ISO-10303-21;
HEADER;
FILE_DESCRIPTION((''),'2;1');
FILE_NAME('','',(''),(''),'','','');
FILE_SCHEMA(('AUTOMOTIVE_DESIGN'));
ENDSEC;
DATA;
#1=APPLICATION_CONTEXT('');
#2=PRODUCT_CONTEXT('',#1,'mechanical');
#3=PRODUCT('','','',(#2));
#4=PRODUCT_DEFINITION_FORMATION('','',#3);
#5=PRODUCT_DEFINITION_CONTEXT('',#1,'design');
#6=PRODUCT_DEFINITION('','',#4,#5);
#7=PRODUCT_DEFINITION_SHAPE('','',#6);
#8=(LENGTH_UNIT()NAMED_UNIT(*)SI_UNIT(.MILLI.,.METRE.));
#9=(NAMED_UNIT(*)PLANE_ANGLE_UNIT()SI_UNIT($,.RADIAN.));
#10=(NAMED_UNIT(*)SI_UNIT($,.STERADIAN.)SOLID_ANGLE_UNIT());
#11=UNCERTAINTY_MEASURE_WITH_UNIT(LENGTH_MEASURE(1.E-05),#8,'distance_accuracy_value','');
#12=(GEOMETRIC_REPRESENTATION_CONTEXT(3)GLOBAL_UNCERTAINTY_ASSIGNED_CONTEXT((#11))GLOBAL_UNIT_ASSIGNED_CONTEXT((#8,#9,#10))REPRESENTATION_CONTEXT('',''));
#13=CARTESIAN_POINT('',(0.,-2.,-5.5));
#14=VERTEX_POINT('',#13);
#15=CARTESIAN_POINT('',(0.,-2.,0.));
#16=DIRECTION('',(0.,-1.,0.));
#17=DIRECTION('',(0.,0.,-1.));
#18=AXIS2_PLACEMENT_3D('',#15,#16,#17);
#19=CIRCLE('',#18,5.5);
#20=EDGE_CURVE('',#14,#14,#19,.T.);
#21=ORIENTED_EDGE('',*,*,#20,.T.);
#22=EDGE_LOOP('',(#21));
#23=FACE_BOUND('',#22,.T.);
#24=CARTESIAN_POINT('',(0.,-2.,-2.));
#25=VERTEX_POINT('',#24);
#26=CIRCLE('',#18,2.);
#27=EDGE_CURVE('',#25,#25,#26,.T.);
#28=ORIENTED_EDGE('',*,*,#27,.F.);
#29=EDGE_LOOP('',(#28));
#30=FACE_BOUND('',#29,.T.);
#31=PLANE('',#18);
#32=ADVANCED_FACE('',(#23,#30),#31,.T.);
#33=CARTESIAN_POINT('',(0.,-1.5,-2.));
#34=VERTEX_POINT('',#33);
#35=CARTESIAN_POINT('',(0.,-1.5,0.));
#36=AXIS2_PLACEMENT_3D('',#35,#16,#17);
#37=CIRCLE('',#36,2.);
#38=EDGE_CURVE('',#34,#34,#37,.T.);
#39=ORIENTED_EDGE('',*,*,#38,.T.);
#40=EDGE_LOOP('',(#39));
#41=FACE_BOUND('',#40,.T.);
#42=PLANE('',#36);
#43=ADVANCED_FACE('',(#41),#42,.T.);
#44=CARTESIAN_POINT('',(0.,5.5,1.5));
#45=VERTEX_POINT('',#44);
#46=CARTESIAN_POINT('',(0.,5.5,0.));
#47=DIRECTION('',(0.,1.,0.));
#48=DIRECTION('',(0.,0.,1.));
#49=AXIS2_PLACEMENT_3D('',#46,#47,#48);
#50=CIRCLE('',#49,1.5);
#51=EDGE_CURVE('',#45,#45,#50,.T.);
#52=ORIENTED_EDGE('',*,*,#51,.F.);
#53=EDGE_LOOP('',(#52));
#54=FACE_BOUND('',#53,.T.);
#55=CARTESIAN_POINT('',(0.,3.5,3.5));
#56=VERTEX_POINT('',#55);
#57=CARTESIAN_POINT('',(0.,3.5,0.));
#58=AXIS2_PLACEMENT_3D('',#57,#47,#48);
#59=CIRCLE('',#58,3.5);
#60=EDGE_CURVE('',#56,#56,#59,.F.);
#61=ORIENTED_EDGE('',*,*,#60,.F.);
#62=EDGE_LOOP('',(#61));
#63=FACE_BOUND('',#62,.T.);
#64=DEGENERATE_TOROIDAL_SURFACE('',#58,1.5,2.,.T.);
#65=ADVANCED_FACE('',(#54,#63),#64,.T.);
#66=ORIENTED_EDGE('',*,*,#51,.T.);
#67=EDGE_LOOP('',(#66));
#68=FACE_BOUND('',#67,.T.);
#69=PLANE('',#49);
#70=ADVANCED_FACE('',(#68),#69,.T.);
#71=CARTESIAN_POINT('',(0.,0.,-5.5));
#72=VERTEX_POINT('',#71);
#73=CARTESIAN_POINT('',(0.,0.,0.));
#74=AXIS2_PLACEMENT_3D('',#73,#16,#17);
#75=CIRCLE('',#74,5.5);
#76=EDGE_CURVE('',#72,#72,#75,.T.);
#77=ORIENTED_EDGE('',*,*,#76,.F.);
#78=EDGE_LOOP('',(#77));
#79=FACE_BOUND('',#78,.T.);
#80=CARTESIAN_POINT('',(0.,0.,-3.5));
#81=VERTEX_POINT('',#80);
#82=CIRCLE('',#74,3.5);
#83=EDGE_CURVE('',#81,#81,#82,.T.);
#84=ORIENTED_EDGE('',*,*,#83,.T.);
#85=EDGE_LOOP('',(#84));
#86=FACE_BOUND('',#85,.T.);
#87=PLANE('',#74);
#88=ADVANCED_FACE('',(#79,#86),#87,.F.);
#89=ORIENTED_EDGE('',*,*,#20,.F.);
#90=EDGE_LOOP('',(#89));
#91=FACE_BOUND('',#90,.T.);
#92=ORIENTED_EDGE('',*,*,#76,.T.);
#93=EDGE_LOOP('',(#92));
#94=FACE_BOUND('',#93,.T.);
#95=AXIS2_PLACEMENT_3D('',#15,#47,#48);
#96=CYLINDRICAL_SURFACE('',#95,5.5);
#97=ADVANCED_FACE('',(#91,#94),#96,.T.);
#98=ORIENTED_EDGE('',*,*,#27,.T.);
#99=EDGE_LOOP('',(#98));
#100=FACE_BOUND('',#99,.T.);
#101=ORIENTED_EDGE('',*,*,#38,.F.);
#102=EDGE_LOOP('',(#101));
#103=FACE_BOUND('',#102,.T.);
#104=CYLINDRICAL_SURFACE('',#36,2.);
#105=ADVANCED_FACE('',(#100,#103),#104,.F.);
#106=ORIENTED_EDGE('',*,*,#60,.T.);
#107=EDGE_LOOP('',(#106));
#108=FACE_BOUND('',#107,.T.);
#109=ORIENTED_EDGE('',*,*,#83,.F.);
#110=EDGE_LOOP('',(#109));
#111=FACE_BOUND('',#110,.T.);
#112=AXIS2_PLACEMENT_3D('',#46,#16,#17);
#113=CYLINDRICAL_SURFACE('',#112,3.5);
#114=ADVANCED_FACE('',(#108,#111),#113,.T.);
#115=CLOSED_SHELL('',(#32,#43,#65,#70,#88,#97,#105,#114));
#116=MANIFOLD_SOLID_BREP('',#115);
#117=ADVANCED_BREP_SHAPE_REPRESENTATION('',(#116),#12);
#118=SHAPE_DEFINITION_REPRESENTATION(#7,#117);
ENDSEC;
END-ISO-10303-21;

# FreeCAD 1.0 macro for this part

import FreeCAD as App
import Part
import Sketcher


def edges_at(feature, points):
    """Names of the edges that pass closest to the given points."""
    edges = feature.Shape.Edges
    near = lambda p: min(range(len(edges)), key=lambda i: edges[i].distToShape(Part.Vertex(*p))[0])
    return sorted({f"Edge{near(p) + 1}" for p in points})

doc = App.newDocument("Part")
body = doc.addObject("PartDesign::Body", "Body")

# Sketch on XZ plane
sketch1 = doc.addObject("Sketcher::SketchObject", "Sketch")
body.addObject(sketch1)
sketch1.AttachmentSupport = (doc.XZ_Plane, [""])
sketch1.MapMode = "FlatFace"
sketch1.addGeometry(Part.Circle(App.Vector(0, 0, 0), App.Vector(0, 0, 1), 3.5), False)
sketch1.addConstraint([
    Sketcher.Constraint("Coincident", 0, 3, -1, 1),
    Sketcher.Constraint("Diameter", 0, 7.0),
])
pad1 = doc.addObject("PartDesign::Pad", "Pad")
body.addObject(pad1)
pad1.Profile = sketch1
pad1.Length = 5.5
pad1.Reversed = True

# Sketch on XZ plane
sketch2 = doc.addObject("Sketcher::SketchObject", "Sketch001")
body.addObject(sketch2)
sketch2.AttachmentSupport = (doc.XZ_Plane, [""])
sketch2.MapMode = "FlatFace"
sketch2.addGeometry(Part.Circle(App.Vector(0, 0, 0), App.Vector(0, 0, 1), 5.5), False)
sketch2.addConstraint([
    Sketcher.Constraint("Coincident", 0, 3, -1, 1),
    Sketcher.Constraint("Diameter", 0, 11.0),
])
pad2 = doc.addObject("PartDesign::Pad", "Pad001")
body.addObject(pad2)
pad2.Profile = sketch2
pad2.Length = 2

# Sketch on XZ plane
sketch3 = doc.addObject("Sketcher::SketchObject", "Sketch002")
body.addObject(sketch3)
sketch3.AttachmentSupport = (doc.XZ_Plane, [""])
sketch3.MapMode = "FlatFace"
sketch3.AttachmentOffset = App.Placement(App.Vector(0, 0, 2), App.Rotation())
sketch3.addGeometry(Part.Circle(App.Vector(0, 0, 0), App.Vector(0, 0, 1), 2), False)
sketch3.addConstraint([
    Sketcher.Constraint("Coincident", 0, 3, -1, 1),
    Sketcher.Constraint("Diameter", 0, 4.0),
])
pocket1 = doc.addObject("PartDesign::Pocket", "Pocket")
body.addObject(pocket1)
pocket1.Profile = sketch3
pocket1.Length = 0.5
doc.recompute()

fillet = doc.addObject("PartDesign::Fillet", "Fillet")
body.addObject(fillet)
fillet.Base = (pocket1, edges_at(pocket1, [(-3.5, 5.5, 0)]))
fillet.Radius = 2

doc.recompute()
